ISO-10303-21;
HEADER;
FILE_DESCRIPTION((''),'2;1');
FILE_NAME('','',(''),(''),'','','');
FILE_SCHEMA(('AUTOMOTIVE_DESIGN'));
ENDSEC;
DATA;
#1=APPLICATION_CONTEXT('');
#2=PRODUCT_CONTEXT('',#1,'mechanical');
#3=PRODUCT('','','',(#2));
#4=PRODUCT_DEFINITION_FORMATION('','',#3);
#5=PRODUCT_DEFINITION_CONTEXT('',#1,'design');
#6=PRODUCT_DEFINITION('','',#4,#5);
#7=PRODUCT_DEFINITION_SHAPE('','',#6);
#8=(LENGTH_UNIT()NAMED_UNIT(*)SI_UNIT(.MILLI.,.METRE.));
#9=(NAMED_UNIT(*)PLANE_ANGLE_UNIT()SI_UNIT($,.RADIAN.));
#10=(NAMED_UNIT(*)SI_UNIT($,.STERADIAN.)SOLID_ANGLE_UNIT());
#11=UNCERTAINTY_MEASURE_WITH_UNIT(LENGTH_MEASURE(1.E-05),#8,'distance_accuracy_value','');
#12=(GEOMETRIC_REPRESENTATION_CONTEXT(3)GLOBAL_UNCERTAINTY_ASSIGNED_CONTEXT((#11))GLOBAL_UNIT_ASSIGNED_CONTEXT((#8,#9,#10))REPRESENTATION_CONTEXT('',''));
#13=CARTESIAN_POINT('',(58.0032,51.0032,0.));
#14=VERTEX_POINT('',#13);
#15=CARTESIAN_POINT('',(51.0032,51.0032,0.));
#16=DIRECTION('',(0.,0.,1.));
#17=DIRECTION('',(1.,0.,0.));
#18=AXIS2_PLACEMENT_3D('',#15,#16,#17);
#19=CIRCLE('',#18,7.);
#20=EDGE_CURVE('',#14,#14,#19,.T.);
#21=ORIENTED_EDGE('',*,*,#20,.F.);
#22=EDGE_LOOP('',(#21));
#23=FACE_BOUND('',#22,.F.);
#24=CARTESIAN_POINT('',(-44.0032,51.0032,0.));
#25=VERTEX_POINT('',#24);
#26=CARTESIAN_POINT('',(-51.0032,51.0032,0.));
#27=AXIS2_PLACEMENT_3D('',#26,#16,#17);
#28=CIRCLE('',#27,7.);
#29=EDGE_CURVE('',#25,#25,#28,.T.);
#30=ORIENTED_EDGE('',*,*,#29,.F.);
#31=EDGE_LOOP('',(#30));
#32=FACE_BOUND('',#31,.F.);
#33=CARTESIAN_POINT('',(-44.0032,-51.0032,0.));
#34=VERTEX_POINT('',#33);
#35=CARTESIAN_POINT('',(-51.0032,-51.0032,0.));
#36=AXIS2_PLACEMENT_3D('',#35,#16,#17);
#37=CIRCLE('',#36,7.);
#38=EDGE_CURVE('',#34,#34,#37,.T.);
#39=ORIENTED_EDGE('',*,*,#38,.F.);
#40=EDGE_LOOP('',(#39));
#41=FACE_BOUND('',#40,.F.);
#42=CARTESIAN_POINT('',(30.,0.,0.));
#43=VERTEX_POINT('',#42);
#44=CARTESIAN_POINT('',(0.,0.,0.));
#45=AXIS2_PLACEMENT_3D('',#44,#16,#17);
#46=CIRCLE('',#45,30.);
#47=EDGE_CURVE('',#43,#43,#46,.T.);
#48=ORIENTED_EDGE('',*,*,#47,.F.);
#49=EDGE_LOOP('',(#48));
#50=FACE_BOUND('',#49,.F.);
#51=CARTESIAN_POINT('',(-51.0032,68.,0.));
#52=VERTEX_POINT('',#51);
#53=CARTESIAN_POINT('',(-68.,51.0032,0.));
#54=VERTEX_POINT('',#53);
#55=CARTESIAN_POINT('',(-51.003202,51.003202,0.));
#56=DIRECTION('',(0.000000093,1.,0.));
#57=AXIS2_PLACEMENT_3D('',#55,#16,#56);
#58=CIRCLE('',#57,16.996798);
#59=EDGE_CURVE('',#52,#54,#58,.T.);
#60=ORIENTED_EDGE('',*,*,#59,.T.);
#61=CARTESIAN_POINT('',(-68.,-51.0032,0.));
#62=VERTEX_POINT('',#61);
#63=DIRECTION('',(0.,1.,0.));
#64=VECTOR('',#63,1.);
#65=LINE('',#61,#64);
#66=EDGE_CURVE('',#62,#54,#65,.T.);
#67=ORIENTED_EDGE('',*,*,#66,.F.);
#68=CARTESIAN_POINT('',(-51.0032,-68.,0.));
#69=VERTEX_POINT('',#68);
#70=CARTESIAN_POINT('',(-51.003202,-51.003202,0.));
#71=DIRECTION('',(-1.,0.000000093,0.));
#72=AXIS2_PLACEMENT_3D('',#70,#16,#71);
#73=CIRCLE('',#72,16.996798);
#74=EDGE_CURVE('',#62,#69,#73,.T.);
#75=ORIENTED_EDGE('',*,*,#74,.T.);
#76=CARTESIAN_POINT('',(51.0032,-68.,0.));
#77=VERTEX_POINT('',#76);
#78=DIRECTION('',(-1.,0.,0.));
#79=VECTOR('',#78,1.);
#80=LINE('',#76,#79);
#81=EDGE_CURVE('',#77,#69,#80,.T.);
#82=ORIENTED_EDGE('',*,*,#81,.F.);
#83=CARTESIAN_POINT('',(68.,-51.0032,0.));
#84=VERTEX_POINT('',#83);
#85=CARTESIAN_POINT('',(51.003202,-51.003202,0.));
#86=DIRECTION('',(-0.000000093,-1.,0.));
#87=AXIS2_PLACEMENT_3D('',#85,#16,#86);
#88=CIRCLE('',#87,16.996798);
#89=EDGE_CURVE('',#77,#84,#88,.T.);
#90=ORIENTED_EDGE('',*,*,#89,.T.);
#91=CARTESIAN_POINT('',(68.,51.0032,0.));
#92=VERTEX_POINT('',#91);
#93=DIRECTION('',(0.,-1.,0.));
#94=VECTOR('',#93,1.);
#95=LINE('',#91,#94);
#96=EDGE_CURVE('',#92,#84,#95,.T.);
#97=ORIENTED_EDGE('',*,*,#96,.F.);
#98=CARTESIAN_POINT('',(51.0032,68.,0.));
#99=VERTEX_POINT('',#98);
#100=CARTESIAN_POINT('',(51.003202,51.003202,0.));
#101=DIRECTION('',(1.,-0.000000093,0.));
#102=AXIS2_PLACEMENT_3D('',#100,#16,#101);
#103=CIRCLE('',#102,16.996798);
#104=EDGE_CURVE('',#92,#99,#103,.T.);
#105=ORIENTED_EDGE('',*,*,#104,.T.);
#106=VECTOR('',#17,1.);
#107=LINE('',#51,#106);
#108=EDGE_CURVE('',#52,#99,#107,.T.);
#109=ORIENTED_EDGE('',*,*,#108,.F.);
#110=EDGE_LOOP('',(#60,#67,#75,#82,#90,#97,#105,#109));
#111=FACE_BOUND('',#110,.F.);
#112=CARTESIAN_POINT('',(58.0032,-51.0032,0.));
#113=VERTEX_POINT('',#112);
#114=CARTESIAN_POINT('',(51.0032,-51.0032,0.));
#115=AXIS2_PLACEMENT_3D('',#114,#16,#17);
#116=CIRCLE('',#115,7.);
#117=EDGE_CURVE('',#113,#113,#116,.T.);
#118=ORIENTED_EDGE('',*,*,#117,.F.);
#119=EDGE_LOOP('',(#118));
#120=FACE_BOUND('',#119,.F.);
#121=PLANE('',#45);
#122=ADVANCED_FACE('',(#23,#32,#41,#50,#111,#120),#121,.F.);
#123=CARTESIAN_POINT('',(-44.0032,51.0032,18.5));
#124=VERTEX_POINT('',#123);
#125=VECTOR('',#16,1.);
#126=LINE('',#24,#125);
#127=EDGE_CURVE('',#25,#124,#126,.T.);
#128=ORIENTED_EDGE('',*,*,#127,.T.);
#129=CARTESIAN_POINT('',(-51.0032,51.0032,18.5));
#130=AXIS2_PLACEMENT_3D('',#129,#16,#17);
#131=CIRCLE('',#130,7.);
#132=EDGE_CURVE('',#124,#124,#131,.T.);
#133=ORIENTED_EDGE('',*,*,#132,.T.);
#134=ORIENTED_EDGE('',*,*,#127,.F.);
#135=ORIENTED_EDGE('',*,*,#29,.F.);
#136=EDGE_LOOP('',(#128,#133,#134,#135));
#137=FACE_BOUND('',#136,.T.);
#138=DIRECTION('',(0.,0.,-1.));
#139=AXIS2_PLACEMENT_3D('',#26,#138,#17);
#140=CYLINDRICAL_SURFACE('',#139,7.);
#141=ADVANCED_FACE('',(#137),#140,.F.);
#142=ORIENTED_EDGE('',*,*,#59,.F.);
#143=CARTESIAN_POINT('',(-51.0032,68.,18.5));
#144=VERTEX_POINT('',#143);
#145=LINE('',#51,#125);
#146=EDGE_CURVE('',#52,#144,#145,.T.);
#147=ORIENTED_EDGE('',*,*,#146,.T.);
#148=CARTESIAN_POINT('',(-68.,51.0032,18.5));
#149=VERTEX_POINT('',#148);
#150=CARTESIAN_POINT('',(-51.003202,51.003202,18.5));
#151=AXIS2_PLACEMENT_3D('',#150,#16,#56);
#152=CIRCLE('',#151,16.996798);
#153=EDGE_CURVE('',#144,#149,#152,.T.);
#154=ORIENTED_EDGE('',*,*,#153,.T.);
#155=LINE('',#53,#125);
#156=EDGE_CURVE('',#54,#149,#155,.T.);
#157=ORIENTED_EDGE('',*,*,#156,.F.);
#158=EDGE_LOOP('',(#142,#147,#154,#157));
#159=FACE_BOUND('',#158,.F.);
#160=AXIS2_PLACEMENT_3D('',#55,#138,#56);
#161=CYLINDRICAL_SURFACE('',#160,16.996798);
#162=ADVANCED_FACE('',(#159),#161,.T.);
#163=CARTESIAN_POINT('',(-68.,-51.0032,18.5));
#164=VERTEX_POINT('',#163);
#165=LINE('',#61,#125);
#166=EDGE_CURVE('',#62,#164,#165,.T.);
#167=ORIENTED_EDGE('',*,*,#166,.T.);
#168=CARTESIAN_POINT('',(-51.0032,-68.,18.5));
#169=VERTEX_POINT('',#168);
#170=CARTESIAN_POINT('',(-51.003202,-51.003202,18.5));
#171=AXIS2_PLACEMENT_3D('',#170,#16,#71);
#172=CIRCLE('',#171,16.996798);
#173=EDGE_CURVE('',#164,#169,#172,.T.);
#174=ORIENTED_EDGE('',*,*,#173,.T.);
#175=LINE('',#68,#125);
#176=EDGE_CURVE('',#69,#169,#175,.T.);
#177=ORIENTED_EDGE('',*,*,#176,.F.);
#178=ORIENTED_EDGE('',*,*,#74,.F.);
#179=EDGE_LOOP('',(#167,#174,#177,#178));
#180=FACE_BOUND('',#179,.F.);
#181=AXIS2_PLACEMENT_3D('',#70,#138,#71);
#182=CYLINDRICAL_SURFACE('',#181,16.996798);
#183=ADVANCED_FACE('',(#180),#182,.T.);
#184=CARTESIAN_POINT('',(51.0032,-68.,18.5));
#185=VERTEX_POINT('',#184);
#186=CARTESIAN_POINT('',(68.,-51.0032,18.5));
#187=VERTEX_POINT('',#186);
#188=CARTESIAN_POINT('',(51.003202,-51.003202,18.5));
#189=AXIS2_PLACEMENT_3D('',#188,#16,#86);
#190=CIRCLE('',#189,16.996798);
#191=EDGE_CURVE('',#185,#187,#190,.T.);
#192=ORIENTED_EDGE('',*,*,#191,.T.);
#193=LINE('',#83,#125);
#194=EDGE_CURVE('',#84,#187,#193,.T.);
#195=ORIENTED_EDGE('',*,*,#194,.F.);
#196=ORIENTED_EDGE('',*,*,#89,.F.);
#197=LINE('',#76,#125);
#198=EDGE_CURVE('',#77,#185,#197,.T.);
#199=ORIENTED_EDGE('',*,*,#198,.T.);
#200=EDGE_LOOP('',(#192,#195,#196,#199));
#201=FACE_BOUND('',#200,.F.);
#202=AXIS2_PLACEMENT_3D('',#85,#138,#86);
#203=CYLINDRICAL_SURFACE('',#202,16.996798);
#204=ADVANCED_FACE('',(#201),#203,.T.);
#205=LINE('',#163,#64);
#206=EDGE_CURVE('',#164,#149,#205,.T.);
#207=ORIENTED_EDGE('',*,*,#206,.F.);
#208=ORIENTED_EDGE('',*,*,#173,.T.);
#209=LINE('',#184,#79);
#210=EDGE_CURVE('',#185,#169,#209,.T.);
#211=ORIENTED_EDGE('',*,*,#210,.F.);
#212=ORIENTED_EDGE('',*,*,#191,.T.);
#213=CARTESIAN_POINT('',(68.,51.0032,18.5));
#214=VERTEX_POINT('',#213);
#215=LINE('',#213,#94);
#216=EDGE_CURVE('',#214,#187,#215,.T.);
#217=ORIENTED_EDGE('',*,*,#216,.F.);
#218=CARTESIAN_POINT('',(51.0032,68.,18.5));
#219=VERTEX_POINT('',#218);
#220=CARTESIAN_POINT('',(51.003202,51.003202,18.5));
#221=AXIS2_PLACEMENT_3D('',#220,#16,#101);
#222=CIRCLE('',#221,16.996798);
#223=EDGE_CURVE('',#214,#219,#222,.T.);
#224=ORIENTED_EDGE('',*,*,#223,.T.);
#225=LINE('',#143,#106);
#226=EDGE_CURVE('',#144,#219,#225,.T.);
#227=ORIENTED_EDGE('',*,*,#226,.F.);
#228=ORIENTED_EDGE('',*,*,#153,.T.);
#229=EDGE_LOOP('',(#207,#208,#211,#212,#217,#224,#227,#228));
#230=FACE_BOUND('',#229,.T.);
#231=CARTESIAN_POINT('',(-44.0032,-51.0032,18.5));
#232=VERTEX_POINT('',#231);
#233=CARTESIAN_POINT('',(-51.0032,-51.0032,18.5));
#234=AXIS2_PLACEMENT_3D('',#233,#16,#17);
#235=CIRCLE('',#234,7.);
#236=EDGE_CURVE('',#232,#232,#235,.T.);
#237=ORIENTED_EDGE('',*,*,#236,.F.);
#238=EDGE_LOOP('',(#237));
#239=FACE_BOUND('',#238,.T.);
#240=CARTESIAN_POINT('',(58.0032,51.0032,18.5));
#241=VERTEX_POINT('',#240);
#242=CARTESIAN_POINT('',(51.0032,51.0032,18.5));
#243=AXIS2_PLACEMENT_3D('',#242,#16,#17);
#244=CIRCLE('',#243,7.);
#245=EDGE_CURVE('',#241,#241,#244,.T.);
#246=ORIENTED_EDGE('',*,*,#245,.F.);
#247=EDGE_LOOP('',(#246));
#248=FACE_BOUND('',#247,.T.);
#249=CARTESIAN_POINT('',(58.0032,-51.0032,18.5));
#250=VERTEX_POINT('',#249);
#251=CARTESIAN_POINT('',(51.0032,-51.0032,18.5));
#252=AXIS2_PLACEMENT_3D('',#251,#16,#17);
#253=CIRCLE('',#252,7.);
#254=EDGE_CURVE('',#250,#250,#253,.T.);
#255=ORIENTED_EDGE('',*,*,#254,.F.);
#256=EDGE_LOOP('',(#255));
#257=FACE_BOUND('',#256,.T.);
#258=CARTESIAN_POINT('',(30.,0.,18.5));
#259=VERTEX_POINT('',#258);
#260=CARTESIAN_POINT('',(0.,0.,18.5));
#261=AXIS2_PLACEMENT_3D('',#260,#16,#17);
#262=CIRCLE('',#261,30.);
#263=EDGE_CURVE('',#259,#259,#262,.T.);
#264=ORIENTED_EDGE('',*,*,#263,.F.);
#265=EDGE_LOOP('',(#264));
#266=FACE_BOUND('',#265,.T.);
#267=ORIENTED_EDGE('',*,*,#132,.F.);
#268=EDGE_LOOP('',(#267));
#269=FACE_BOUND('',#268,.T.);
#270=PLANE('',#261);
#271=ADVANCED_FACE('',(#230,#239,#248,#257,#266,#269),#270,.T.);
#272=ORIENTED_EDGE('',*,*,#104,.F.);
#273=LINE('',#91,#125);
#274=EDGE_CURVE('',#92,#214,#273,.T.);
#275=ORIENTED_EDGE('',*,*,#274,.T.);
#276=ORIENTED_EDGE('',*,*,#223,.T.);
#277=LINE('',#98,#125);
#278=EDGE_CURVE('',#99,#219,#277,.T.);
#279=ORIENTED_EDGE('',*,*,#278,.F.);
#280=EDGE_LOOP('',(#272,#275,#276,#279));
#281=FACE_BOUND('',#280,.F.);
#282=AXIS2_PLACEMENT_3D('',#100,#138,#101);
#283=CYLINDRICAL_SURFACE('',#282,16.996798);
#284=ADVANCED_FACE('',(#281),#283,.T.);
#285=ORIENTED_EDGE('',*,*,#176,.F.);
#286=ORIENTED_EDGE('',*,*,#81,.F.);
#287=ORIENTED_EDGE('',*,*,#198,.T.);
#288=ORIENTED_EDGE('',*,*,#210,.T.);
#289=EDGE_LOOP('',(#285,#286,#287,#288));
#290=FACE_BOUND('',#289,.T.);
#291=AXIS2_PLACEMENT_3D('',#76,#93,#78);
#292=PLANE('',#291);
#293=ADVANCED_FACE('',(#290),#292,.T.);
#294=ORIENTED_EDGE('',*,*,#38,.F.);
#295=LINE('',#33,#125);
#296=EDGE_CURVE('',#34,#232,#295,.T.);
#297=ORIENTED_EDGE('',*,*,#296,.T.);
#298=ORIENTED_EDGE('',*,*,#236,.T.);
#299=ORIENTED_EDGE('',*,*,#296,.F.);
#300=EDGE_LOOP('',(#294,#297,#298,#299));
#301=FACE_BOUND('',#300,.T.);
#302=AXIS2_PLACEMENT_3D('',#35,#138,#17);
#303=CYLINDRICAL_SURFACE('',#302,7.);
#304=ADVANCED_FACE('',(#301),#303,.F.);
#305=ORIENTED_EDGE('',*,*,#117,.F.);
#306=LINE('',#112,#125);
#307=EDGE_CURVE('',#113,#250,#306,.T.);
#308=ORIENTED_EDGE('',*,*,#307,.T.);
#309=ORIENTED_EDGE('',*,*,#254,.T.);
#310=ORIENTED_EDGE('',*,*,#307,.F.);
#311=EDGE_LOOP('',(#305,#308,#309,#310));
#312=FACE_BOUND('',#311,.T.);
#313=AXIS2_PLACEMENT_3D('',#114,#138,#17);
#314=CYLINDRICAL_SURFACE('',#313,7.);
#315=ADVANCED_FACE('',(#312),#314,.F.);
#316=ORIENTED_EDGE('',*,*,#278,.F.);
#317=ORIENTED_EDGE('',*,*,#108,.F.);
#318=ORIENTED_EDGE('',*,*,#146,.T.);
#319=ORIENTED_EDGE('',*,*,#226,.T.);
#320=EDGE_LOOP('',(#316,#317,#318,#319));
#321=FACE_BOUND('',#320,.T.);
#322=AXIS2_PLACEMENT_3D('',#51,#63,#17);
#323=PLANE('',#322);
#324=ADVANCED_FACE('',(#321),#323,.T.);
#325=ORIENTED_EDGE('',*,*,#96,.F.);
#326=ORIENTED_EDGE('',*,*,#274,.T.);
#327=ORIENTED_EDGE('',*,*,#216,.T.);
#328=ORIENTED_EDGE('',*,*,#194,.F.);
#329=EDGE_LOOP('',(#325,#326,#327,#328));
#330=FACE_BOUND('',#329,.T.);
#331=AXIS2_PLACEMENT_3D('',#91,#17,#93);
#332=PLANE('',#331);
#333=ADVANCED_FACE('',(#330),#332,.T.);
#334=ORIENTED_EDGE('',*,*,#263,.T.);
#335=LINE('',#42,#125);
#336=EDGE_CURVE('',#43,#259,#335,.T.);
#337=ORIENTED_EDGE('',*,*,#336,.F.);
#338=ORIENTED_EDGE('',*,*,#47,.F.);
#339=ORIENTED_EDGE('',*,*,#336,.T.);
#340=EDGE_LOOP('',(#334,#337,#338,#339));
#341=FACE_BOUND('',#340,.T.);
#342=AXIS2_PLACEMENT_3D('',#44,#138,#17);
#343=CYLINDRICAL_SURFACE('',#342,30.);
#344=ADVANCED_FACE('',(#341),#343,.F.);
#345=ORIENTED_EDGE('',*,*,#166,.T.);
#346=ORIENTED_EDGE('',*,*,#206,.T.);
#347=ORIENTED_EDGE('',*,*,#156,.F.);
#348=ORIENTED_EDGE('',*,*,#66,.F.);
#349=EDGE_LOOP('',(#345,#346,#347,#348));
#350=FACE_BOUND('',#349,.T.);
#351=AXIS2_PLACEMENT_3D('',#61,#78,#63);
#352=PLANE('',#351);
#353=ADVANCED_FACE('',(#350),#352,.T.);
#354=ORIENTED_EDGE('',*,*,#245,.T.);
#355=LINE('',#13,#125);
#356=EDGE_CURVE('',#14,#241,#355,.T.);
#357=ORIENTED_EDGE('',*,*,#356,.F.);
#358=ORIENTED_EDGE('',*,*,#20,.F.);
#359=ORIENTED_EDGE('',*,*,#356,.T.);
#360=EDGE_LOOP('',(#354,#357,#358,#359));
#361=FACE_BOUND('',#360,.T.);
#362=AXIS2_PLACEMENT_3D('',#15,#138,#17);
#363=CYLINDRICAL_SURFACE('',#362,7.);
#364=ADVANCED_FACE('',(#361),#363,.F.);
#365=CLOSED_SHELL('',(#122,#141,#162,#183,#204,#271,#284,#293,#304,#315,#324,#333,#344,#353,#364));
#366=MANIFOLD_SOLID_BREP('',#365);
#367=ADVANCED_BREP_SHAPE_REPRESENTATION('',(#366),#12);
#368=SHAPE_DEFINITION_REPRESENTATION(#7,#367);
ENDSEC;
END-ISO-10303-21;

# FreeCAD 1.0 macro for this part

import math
import FreeCAD as App
import Part
import Sketcher
Q = App.Units.Quantity

doc = App.newDocument("Part")
body = doc.addObject("PartDesign::Body", "Body")

# Sketch on XY plane
sketch1 = body.newObject("Sketcher::SketchObject", "Sketch")
sketch1.AttachmentSupport = (doc.getObject("XY_Plane"), [""])
sketch1.MapMode = "FlatFace"
sketch1.addGeometry(Part.ArcOfCircle(Part.Circle(App.Vector(-51.003202, 51.003202, 0), App.Vector(0, 0, 1), 16.996798), math.radians(89.999995), math.radians(180.000005)), False)
sketch1.addGeometry(Part.LineSegment(App.Vector(-68, 51.0032, 0), App.Vector(-68, -51.0032, 0)), False)
sketch1.addGeometry(Part.ArcOfCircle(Part.Circle(App.Vector(-51.003202, -51.003202, 0), App.Vector(0, 0, 1), 16.996798), math.radians(179.999995), math.radians(270.000005)), False)
sketch1.addGeometry(Part.LineSegment(App.Vector(-51.0032, -68, 0), App.Vector(51.0032, -68, 0)), False)
sketch1.addGeometry(Part.ArcOfCircle(Part.Circle(App.Vector(51.003202, -51.003202, 0), App.Vector(0, 0, 1), 16.996798), math.radians(-90.000005), math.radians(0.000005)), False)
sketch1.addGeometry(Part.LineSegment(App.Vector(68, -51.0032, 0), App.Vector(68, 51.0032, 0)), False)
sketch1.addGeometry(Part.ArcOfCircle(Part.Circle(App.Vector(51.003202, 51.003202, 0), App.Vector(0, 0, 1), 16.996798), math.radians(-0.000005), math.radians(90.000005)), False)
sketch1.addGeometry(Part.LineSegment(App.Vector(51.0032, 68, 0), App.Vector(-51.0032, 68, 0)), False)
sketch1.addGeometry(Part.Circle(App.Vector(-51.0032, -51.0032, 0), App.Vector(0, 0, 1), 7), False)
sketch1.addGeometry(Part.Circle(App.Vector(51.0032, -51.0032, 0), App.Vector(0, 0, 1), 7), False)
sketch1.addGeometry(Part.Circle(App.Vector(0, 0, 0), App.Vector(0, 0, 1), 30), False)
sketch1.addGeometry(Part.Circle(App.Vector(-51.0032, 51.0032, 0), App.Vector(0, 0, 1), 7), False)
sketch1.addGeometry(Part.Circle(App.Vector(51.0032, 51.0032, 0), App.Vector(0, 0, 1), 7), False)
sketch1.addConstraint(Sketcher.Constraint("Tangent", 0, 2, 1, 1))
sketch1.addConstraint(Sketcher.Constraint("Tangent", 1, 2, 2, 1))
sketch1.addConstraint(Sketcher.Constraint("Tangent", 2, 2, 3, 1))
sketch1.addConstraint(Sketcher.Constraint("Tangent", 3, 2, 4, 1))
sketch1.addConstraint(Sketcher.Constraint("Tangent", 4, 2, 5, 1))
sketch1.addConstraint(Sketcher.Constraint("Tangent", 5, 2, 6, 1))
sketch1.addConstraint(Sketcher.Constraint("Tangent", 6, 2, 7, 1))
sketch1.addConstraint(Sketcher.Constraint("Tangent", 7, 2, 0, 1))
sketch1.addConstraint(Sketcher.Constraint("Vertical", 1))
sketch1.addConstraint(Sketcher.Constraint("Horizontal", 3))
sketch1.addConstraint(Sketcher.Constraint("Vertical", 5))
sketch1.addConstraint(Sketcher.Constraint("Horizontal", 7))
sketch1.addConstraint(Sketcher.Constraint("Coincident", 10, 3, -1, 1))
sketch1.addConstraint(Sketcher.Constraint("Coincident", 8, 3, 2, 3))
sketch1.addConstraint(Sketcher.Constraint("Coincident", 9, 3, 4, 3))
sketch1.addConstraint(Sketcher.Constraint("Coincident", 11, 3, 0, 3))
sketch1.addConstraint(Sketcher.Constraint("Coincident", 12, 3, 6, 3))
sketch1.addConstraint(Sketcher.Constraint("Equal", 0, 2))
sketch1.addConstraint(Sketcher.Constraint("Equal", 2, 4))
sketch1.addConstraint(Sketcher.Constraint("Equal", 4, 6))
sketch1.addConstraint(Sketcher.Constraint("Equal", 8, 9))
sketch1.addConstraint(Sketcher.Constraint("Equal", 9, 11))
sketch1.addConstraint(Sketcher.Constraint("Equal", 11, 12))
sketch1.addConstraint(Sketcher.Constraint("Symmetric", 0, 3, 4, 3, -1, 1))
sketch1.addConstraint(Sketcher.Constraint("Equal", 7, 1))
sketch1.addConstraint(Sketcher.Constraint("Diameter", 8, Q("14 mm")))
sketch1.addConstraint(Sketcher.Constraint("Diameter", 10, Q("60 mm")))
sketch1.addConstraint(Sketcher.Constraint("DistanceX", 0, 2, -1, 1, Q("68 mm")))
sketch1.addConstraint(Sketcher.Constraint("Radius", 0, Q("16.996798 mm")))
pad1 = body.newObject("PartDesign::Pad", "Pad")
pad1.Profile = sketch1
pad1.Length = 18.5

doc.recompute()
